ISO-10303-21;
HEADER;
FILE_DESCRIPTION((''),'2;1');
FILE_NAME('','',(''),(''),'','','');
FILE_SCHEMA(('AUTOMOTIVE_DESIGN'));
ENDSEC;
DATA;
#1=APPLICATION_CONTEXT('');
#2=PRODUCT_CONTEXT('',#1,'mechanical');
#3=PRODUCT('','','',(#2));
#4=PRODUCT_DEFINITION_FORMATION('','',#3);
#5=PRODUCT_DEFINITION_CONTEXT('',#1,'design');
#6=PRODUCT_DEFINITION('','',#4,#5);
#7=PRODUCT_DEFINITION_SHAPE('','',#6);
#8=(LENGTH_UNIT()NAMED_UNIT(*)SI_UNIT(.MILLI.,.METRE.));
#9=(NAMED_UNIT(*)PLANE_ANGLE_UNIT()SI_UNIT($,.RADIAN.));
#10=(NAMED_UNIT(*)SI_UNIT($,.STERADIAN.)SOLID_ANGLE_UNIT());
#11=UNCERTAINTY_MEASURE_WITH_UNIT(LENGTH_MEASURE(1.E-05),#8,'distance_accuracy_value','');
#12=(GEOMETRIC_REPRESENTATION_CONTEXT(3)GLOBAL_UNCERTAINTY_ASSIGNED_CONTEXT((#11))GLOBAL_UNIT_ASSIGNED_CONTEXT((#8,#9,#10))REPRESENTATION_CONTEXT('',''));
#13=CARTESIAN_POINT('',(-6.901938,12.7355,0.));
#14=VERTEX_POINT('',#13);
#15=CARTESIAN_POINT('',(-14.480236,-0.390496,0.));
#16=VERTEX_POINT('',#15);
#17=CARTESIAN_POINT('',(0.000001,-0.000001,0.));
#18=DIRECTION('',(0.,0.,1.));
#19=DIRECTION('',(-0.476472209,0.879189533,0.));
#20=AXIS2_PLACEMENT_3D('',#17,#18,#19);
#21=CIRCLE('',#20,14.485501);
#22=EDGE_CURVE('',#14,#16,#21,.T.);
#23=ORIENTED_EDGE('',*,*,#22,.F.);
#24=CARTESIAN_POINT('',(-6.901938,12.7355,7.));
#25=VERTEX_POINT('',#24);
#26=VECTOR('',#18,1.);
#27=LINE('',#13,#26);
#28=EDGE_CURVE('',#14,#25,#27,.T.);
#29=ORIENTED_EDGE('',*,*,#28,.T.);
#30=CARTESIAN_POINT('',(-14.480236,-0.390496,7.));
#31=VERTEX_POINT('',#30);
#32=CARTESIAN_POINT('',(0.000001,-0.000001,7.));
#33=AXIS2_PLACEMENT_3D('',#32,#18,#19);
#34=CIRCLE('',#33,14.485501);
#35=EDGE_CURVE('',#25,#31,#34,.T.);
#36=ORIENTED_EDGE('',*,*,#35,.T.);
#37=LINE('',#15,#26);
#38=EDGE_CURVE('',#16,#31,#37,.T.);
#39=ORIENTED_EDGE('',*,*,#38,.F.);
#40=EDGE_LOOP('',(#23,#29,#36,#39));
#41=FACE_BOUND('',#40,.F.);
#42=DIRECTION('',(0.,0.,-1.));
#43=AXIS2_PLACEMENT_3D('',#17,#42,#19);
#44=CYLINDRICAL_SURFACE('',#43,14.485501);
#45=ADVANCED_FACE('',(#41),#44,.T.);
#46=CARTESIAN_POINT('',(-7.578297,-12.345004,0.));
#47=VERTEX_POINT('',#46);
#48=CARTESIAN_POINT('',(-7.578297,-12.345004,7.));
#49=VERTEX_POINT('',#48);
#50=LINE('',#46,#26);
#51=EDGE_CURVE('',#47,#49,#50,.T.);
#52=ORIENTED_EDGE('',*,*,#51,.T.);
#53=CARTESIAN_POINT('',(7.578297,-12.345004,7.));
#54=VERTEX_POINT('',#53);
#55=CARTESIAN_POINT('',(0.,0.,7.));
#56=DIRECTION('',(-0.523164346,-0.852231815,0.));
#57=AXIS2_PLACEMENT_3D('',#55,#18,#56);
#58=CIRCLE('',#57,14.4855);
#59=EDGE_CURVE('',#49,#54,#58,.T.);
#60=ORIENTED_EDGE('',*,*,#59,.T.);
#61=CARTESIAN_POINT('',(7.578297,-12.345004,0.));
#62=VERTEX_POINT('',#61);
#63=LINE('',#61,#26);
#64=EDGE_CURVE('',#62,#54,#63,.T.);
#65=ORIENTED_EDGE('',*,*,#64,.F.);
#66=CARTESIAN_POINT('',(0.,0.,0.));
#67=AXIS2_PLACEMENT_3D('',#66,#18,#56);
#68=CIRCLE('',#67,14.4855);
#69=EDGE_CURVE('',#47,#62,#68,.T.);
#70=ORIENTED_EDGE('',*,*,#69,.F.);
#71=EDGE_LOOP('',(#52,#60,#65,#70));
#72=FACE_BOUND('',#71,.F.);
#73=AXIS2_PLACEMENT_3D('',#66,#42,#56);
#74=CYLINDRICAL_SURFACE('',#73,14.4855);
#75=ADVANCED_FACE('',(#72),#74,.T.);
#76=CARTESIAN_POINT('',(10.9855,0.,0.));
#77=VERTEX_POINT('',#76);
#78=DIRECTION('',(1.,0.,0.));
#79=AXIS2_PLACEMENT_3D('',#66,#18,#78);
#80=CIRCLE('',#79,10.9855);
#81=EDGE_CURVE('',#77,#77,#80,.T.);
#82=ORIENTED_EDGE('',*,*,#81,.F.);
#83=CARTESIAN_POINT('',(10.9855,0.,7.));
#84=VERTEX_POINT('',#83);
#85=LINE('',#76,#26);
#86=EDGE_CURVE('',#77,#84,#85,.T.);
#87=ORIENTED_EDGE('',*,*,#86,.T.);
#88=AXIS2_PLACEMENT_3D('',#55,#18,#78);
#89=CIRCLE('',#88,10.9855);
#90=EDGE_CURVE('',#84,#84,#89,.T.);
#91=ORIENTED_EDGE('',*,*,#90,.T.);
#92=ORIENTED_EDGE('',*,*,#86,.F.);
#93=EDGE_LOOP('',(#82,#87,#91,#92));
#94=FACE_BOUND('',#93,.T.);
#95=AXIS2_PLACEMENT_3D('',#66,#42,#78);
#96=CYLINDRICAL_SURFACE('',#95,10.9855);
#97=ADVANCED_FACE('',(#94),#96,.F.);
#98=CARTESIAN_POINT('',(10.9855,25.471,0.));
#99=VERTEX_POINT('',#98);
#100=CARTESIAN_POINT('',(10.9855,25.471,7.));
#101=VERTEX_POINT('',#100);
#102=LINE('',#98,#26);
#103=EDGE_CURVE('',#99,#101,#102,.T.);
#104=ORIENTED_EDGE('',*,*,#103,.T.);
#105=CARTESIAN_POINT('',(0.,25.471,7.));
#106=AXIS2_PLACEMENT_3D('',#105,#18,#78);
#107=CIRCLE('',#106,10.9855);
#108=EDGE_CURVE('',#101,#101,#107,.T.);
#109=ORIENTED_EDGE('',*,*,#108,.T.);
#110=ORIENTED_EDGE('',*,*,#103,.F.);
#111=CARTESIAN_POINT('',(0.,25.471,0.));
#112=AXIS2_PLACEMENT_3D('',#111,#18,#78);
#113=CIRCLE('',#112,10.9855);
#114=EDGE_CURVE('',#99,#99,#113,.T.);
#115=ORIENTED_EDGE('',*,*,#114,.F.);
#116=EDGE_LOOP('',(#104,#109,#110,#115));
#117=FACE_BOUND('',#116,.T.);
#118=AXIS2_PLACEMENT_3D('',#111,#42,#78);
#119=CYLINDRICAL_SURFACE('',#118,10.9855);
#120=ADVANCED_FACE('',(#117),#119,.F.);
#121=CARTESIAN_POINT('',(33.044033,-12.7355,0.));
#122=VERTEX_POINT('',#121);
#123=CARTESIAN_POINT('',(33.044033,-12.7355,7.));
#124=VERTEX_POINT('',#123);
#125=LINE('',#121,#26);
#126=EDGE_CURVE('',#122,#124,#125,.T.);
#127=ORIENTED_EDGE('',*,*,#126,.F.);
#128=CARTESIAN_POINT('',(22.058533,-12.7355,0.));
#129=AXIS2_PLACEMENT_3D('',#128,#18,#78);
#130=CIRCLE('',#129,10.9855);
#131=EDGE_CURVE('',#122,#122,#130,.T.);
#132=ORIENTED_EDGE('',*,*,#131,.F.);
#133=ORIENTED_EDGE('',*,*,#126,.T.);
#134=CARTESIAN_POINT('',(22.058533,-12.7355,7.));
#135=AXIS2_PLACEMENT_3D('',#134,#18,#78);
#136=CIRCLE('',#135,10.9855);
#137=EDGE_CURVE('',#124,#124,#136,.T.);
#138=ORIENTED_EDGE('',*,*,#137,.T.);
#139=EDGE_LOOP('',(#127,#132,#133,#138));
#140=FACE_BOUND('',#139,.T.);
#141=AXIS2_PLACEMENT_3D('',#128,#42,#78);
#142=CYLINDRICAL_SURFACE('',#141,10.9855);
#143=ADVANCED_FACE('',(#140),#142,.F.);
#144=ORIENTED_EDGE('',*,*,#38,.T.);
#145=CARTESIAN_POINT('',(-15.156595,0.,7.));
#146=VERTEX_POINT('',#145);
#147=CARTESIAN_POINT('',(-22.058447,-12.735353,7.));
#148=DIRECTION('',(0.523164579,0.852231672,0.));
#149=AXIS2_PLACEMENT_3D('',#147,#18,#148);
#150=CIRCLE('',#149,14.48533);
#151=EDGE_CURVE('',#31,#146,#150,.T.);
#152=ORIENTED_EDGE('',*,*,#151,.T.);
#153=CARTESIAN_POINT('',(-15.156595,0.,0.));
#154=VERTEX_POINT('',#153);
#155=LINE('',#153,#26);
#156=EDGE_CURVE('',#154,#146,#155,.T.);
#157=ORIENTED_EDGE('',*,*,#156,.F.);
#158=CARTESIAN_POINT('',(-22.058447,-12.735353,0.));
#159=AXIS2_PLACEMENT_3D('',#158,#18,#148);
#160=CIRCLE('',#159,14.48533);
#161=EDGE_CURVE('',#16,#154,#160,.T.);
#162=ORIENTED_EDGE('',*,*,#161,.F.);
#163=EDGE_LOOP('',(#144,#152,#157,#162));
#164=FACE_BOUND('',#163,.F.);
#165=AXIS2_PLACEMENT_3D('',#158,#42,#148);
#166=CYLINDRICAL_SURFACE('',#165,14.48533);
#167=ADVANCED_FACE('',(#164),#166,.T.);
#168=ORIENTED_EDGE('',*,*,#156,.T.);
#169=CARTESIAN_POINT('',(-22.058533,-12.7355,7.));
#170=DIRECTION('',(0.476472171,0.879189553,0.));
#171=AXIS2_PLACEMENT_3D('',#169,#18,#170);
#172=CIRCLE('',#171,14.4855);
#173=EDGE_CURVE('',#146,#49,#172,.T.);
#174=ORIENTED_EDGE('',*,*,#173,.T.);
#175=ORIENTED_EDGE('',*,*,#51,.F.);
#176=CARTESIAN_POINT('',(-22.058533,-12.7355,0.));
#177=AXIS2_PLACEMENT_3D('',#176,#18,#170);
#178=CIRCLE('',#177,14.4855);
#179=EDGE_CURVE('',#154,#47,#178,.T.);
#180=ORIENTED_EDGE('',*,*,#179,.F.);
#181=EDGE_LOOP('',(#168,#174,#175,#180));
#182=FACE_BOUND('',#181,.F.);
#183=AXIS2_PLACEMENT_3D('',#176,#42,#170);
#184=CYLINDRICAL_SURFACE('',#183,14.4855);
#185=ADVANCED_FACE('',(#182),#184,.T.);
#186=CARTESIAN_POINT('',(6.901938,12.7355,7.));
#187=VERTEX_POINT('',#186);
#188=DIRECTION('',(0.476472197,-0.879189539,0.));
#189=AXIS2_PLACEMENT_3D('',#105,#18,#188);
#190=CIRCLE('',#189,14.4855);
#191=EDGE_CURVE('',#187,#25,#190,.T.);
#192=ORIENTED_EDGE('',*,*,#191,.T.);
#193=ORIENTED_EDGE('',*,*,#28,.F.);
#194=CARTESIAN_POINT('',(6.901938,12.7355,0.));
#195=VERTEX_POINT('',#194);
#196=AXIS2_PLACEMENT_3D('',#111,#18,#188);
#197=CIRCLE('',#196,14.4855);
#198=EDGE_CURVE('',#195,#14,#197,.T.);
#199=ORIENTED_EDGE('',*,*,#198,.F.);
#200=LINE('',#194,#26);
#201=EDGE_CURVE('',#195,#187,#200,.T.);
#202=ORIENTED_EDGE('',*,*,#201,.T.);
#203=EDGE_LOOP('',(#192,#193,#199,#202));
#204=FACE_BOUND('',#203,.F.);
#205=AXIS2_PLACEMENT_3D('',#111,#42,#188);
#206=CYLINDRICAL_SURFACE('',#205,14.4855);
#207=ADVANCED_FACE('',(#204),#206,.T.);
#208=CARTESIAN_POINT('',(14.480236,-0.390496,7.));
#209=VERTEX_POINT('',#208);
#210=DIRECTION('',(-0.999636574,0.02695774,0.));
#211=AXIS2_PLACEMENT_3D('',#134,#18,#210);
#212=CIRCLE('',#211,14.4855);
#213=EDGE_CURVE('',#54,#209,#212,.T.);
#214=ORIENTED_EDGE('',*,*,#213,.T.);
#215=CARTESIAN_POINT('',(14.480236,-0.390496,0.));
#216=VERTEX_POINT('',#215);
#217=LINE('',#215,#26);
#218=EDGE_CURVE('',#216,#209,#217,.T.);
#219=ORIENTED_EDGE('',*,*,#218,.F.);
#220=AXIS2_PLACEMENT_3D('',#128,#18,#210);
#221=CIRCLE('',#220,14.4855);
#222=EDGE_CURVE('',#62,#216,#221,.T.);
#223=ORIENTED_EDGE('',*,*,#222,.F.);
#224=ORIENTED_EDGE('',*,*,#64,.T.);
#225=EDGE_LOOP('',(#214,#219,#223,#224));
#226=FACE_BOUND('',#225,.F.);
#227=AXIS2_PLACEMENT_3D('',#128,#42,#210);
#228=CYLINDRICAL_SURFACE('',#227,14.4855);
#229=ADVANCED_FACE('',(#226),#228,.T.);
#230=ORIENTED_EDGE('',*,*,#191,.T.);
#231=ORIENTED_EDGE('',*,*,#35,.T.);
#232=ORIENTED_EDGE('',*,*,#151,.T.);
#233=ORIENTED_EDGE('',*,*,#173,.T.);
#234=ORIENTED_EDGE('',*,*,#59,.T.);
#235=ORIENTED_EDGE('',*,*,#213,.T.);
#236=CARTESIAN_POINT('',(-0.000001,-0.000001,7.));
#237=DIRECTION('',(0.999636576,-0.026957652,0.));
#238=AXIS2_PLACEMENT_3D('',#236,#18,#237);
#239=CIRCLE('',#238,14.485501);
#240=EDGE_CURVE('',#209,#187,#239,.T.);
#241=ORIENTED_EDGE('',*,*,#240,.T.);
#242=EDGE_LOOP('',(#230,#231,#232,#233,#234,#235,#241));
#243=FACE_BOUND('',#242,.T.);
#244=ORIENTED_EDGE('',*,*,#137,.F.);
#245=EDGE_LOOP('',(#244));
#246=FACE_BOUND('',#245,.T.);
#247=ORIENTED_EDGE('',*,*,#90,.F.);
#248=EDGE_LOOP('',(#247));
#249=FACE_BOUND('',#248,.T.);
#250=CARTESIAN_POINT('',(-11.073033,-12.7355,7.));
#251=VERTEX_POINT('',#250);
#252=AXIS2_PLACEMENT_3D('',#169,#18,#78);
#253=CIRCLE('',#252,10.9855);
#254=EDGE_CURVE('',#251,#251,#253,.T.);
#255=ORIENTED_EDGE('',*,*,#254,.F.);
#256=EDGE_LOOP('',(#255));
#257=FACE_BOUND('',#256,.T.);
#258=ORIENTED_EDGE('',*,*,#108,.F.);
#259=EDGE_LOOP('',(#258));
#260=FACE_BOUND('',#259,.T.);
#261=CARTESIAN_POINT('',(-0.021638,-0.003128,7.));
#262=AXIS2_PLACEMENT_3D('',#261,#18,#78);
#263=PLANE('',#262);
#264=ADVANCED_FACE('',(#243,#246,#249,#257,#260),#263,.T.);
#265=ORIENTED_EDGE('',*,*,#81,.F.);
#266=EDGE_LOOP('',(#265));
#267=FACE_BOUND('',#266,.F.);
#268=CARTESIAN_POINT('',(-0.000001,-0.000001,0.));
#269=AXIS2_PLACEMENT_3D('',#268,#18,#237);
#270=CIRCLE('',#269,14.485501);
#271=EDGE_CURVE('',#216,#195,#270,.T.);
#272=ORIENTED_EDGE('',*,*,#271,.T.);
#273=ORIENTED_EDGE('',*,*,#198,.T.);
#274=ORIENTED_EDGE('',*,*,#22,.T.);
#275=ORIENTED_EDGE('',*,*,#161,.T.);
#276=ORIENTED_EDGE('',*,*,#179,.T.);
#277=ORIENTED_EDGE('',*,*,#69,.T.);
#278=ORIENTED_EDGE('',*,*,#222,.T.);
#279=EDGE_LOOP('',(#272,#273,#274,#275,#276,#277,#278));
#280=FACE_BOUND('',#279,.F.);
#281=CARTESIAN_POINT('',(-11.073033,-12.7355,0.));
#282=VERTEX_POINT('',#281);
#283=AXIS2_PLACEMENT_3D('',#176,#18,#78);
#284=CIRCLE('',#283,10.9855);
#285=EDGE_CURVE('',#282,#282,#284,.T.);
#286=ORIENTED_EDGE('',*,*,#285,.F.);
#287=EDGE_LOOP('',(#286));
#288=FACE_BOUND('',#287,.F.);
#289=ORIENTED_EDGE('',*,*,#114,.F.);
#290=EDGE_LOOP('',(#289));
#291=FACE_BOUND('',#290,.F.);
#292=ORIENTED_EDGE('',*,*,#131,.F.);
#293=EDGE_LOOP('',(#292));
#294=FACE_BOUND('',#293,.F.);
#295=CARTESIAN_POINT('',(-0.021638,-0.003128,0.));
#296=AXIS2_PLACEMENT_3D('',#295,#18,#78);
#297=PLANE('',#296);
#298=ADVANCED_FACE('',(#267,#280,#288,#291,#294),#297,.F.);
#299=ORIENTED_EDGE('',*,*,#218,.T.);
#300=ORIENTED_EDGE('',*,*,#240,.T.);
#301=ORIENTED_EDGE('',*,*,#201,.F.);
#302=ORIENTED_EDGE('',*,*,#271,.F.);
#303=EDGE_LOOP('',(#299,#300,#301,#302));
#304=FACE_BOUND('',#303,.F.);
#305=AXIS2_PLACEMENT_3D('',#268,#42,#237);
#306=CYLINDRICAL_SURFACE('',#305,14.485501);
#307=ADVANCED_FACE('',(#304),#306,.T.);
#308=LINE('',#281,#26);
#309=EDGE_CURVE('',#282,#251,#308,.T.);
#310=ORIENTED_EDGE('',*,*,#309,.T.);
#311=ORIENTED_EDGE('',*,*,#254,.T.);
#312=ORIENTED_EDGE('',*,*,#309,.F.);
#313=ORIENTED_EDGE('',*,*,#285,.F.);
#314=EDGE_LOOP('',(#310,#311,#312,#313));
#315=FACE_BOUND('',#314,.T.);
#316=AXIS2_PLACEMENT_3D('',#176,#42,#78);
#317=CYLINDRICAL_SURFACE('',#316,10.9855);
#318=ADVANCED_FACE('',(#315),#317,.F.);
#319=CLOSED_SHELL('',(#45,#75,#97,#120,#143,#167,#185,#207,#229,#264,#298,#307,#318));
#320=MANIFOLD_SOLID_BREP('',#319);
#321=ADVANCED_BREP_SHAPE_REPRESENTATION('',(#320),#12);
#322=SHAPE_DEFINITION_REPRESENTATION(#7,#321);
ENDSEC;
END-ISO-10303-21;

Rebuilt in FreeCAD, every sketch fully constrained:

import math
import FreeCAD as App
import Part
import Sketcher

V = App.Vector

doc = App.newDocument("Part")
body = doc.addObject("PartDesign::Body", "Body")

# Sketch on XY plane
sketch1 = body.newObject("Sketcher::SketchObject", "Sketch")
sketch1.AttachmentSupport = (doc.getObject("XY_Plane"), [""])
sketch1.MapMode = "FlatFace"
sketch1.addGeometry([
    Part.ArcOfCircle(Part.Circle(V(-22.1, -12.7, 0), V(0, 0, 1), 14.5), math.radians(58.46), math.radians(61.54)),  # 0
    Part.ArcOfCircle(Part.Circle(V(-22.1, -12.7, 0), V(0, 0, 1), 14.5), math.radians(62), math.radians(362)),  # 1
    Part.ArcOfCircle(Part.Circle(V(0, 0, 0), V(0, 0, 1), 14.5), math.radians(-122), math.radians(-58)),  # 2
    Part.ArcOfCircle(Part.Circle(V(22.1, -12.7, 0), V(0, 0, 1), 14.5), math.radians(178), math.radians(482)),  # 3
    Part.ArcOfCircle(Part.Circle(V(0, 0, 0), V(0, 0, 1), 14.5), math.radians(-2), math.radians(62)),  # 4
    Part.ArcOfCircle(Part.Circle(V(0, 25.5, 0), V(0, 0, 1), 14.5), math.radians(-62), math.radians(242)),  # 5
    Part.ArcOfCircle(Part.Circle(V(0, 0, 0), V(0, 0, 1), 14.5), math.radians(118), math.radians(182)),  # 6
    Part.Circle(V(-22.1, -12.7, 0), V(0, 0, 1), 11),  # 7
    Part.Circle(V(22.1, -12.7, 0), V(0, 0, 1), 11),  # 8
    Part.Circle(V(0, 0, 0), V(0, 0, 1), 11),  # 9
    Part.Circle(V(0, 25.5, 0), V(0, 0, 1), 11),  # 10
], False)
sketch1.addConstraint([
    Sketcher.Constraint("Tangent", 0, 2, 1, 1),
    Sketcher.Constraint("Coincident", 1, 2, 2, 1),
    Sketcher.Constraint("Coincident", 2, 2, 3, 1),
    Sketcher.Constraint("Coincident", 3, 2, 4, 1),
    Sketcher.Constraint("Coincident", 4, 2, 5, 1),
    Sketcher.Constraint("Coincident", 5, 2, 6, 1),
    Sketcher.Constraint("Coincident", 6, 2, 0, 1),
    Sketcher.Constraint("Coincident", 2, 3, -1, 1),
    Sketcher.Constraint("Coincident", 4, 3, -1, 1),
    Sketcher.Constraint("Coincident", 6, 3, -1, 1),
    Sketcher.Constraint("Coincident", 9, 3, -1, 1),
    Sketcher.Constraint("Coincident", 7, 3, 1, 3),
    Sketcher.Constraint("Coincident", 8, 3, 3, 3),
    Sketcher.Constraint("Coincident", 10, 3, 5, 3),
    Sketcher.Constraint("Equal", 1, 2),
    Sketcher.Constraint("Equal", 2, 3),
    Sketcher.Constraint("Equal", 3, 4),
    Sketcher.Constraint("Equal", 4, 5),
    Sketcher.Constraint("Equal", 5, 6),
    Sketcher.Constraint("Equal", 7, 8),
    Sketcher.Constraint("Equal", 8, 9),
    Sketcher.Constraint("Equal", 9, 10),
    Sketcher.Constraint("Symmetric", 1, 3, 3, 3, -2),
    Sketcher.Constraint("PointOnObject", 5, 3, -2),
    Sketcher.Constraint("PointOnObject", 0, 2, -1),
    Sketcher.Constraint("Diameter", 7, 21.971),
    Sketcher.Constraint("Radius", 1, 14.4855),
    Sketcher.Constraint("Radius", 0, 14.48533),
    Sketcher.Constraint("DistanceY", -1, 1, 5, 3, 25.471),
    Sketcher.Constraint("DistanceY", 1, 3, -1, 1, 12.7355),
    Sketcher.Constraint("DistanceX", 0, 3, 3, 3, 44.11698),
])
pad1 = body.newObject("PartDesign::Pad", "Pad")
pad1.Profile = sketch1
pad1.Length = 7

doc.recompute()
